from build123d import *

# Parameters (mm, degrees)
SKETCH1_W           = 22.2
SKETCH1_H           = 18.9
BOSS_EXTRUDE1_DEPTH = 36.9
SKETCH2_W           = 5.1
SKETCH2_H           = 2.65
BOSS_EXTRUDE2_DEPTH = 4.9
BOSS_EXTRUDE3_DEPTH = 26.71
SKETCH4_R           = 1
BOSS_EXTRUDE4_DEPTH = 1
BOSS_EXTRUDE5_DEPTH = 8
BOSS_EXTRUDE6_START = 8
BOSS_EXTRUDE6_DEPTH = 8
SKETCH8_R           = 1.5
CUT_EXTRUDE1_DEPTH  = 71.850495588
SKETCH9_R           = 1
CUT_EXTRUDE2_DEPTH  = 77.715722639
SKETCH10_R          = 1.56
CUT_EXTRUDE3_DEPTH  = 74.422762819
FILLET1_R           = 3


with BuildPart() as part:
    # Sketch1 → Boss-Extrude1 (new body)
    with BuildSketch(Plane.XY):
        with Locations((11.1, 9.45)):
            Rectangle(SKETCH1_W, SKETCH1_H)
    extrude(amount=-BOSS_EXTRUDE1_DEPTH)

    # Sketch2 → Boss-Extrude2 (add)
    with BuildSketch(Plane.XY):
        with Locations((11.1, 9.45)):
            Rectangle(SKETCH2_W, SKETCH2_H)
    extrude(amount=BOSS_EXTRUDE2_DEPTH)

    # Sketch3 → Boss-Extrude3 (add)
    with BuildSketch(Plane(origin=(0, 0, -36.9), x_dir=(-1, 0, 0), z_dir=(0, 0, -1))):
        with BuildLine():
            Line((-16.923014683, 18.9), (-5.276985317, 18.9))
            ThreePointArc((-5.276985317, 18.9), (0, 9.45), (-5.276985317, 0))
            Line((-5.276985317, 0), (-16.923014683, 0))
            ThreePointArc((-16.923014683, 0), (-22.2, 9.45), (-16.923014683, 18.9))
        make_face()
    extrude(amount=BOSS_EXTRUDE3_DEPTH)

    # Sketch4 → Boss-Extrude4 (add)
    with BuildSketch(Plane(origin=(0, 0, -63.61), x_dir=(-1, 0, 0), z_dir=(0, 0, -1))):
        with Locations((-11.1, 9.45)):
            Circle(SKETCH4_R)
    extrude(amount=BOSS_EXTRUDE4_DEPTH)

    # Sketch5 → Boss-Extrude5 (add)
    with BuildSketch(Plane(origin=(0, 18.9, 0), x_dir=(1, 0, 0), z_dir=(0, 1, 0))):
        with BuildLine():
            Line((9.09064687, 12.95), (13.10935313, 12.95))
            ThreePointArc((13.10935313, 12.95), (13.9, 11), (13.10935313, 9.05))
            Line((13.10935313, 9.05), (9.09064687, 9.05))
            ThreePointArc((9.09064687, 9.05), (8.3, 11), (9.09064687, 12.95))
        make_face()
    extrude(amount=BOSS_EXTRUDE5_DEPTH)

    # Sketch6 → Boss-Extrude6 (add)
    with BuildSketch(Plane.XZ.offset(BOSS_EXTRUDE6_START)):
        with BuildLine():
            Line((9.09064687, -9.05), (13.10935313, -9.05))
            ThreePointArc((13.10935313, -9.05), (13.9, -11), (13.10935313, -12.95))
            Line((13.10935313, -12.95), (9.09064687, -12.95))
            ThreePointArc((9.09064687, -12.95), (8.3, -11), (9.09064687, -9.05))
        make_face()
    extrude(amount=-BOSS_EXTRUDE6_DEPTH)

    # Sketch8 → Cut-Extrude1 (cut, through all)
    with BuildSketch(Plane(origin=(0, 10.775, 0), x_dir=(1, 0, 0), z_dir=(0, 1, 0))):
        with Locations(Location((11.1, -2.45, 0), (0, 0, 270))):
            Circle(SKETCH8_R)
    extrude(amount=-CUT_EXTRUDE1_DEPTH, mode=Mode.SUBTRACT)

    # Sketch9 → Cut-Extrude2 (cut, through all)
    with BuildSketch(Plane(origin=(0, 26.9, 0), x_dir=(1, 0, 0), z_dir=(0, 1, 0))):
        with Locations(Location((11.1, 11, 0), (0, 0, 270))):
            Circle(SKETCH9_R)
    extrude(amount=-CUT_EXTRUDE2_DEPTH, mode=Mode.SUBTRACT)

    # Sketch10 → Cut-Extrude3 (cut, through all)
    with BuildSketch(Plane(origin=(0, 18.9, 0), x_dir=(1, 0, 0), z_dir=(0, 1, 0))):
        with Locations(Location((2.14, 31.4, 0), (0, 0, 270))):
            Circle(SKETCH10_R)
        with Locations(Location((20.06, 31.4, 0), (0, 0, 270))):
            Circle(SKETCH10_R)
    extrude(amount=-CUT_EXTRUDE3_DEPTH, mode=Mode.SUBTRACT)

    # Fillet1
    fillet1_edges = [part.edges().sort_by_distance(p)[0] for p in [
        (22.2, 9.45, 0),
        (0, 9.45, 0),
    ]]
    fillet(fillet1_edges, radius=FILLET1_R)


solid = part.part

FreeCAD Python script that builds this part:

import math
import FreeCAD as App
import Part
import Sketcher
from FreeCAD import Vector
Q = App.Units.Quantity


def edges_at(feature, points):
    """Names of the edges that pass closest to the given points."""
    edges = feature.Shape.Edges
    near = lambda p: min(range(len(edges)), key=lambda i: edges[i].distToShape(Part.Vertex(*p))[0])
    return sorted({f"Edge{near(p) + 1}" for p in points})

doc = App.newDocument("Part")
body = doc.addObject("PartDesign::Body", "Body")

# Sketch on XY plane
sketch1 = doc.addObject("Sketcher::SketchObject", "Sketch")
body.addObject(sketch1)
sketch1.AttachmentSupport = (doc.XY_Plane, [""])
sketch1.MapMode = "FlatFace"
sketch1.addGeometry([
    Part.LineSegment(Vector(0, 18.9, 0), Vector(0, 0, 0)),
    Part.LineSegment(Vector(0, 0, 0), Vector(22.2, 0, 0)),
    Part.LineSegment(Vector(22.2, 0, 0), Vector(22.2, 18.9, 0)),
    Part.LineSegment(Vector(22.2, 18.9, 0), Vector(0, 18.9, 0)),
], False)
sketch1.addConstraint([
    Sketcher.Constraint("Coincident", 0, 2, 1, 1),
    Sketcher.Constraint("Coincident", 1, 2, 2, 1),
    Sketcher.Constraint("Coincident", 2, 2, 3, 1),
    Sketcher.Constraint("Coincident", 3, 2, 0, 1),
    Sketcher.Constraint("Vertical", 0),
    Sketcher.Constraint("Horizontal", 1),
    Sketcher.Constraint("Vertical", 2),
    Sketcher.Constraint("Horizontal", 3),
    Sketcher.Constraint("Coincident", 0, 2, -1, 1),
    Sketcher.Constraint("DistanceX", 1, 1, 1, 2, Q("22.2 mm")),
    Sketcher.Constraint("DistanceY", 0, 2, 0, 1, Q("18.9 mm")),
])
pad1 = doc.addObject("PartDesign::Pad", "Pad")
body.addObject(pad1)
pad1.Profile = sketch1
pad1.Length = 36.9
pad1.Reversed = True

# Sketch on XY plane
sketch2 = doc.addObject("Sketcher::SketchObject", "Sketch001")
body.addObject(sketch2)
sketch2.AttachmentSupport = (doc.XY_Plane, [""])
sketch2.MapMode = "FlatFace"
sketch2.addGeometry([
    Part.LineSegment(Vector(8.55, 10.775, 0), Vector(8.55, 8.125, 0)),
    Part.LineSegment(Vector(8.55, 8.125, 0), Vector(13.65, 8.125, 0)),
    Part.LineSegment(Vector(13.65, 8.125, 0), Vector(13.65, 10.775, 0)),
    Part.LineSegment(Vector(13.65, 10.775, 0), Vector(8.55, 10.775, 0)),
], False)
sketch2.addConstraint([
    Sketcher.Constraint("Coincident", 0, 2, 1, 1),
    Sketcher.Constraint("Coincident", 1, 2, 2, 1),
    Sketcher.Constraint("Coincident", 2, 2, 3, 1),
    Sketcher.Constraint("Coincident", 3, 2, 0, 1),
    Sketcher.Constraint("Vertical", 0),
    Sketcher.Constraint("Horizontal", 1),
    Sketcher.Constraint("Vertical", 2),
    Sketcher.Constraint("Horizontal", 3),
    Sketcher.Constraint("DistanceX", 1, 1, 1, 2, Q("5.1 mm")),
    Sketcher.Constraint("DistanceY", 0, 2, 0, 1, Q("2.65 mm")),
    Sketcher.Constraint("DistanceX", -1, 1, 0, 2, Q("8.55 mm")),
    Sketcher.Constraint("DistanceY", -1, 1, 0, 2, Q("8.125 mm")),
])
pad2 = doc.addObject("PartDesign::Pad", "Pad001")
body.addObject(pad2)
pad2.Profile = sketch2
pad2.Length = 4.9

# Sketch on XY plane
sketch3 = doc.addObject("Sketcher::SketchObject", "Sketch002")
body.addObject(sketch3)
sketch3.AttachmentSupport = (doc.XY_Plane, [""])
sketch3.MapMode = "FlatFace"
sketch3.AttachmentOffset = App.Placement(Vector(0, 0, -36.9), App.Rotation())
sketch3.addGeometry([
    Part.LineSegment(Vector(5.276985, 18.9, 0), Vector(16.923015, 18.9, 0)),
    Part.ArcOfCircle(Part.Circle(Vector(11.1, 9.45, 0), Vector(0, 0, 1), 11.1), math.radians(-58.358955), math.radians(58.358955)),
    Part.LineSegment(Vector(16.923015, 0, 0), Vector(5.276985, 0, 0)),
    Part.ArcOfCircle(Part.Circle(Vector(11.1, 9.45, 0), Vector(0, 0, 1), 11.1), math.radians(121.641045), math.radians(238.358955)),
], False)
sketch3.addConstraint([
    Sketcher.Constraint("Coincident", 0, 2, 1, 2),
    Sketcher.Constraint("Coincident", 1, 1, 2, 1),
    Sketcher.Constraint("Coincident", 2, 2, 3, 2),
    Sketcher.Constraint("Coincident", 3, 1, 0, 1),
    Sketcher.Constraint("Horizontal", 0),
    Sketcher.Constraint("Horizontal", 2),
    Sketcher.Constraint("Coincident", 3, 3, 1, 3),
    Sketcher.Constraint("Equal", 1, 3),
    Sketcher.Constraint("PointOnObject", 1, 1, -1),
    Sketcher.Constraint("Vertical", 0, 2, 1, 1),
    Sketcher.Constraint("Radius", 1, Q("11.1 mm")),
    Sketcher.Constraint("DistanceX", -1, 1, 1, 3, Q("11.1 mm")),
    Sketcher.Constraint("DistanceY", -1, 1, 0, 2, Q("18.9 mm")),
])
pad3 = doc.addObject("PartDesign::Pad", "Pad002")
body.addObject(pad3)
pad3.Profile = sketch3
pad3.Length = 26.71
pad3.Reversed = True

# Sketch on XY plane
sketch4 = doc.addObject("Sketcher::SketchObject", "Sketch003")
body.addObject(sketch4)
sketch4.AttachmentSupport = (doc.XY_Plane, [""])
sketch4.MapMode = "FlatFace"
sketch4.AttachmentOffset = App.Placement(Vector(0, 0, -63.61), App.Rotation())
sketch4.addGeometry(Part.Circle(Vector(11.1, 9.45, 0), Vector(0, 0, 1), 1), False)
sketch4.addConstraint([
    Sketcher.Constraint("Diameter", 0, Q("2 mm")),
    Sketcher.Constraint("DistanceX", -1, 1, 0, 3, Q("11.1 mm")),
    Sketcher.Constraint("DistanceY", -1, 1, 0, 3, Q("9.45 mm")),
])
pad4 = doc.addObject("PartDesign::Pad", "Pad003")
body.addObject(pad4)
pad4.Profile = sketch4
pad4.Length = 1
pad4.Reversed = True

# Sketch on XZ plane
sketch5 = doc.addObject("Sketcher::SketchObject", "Sketch004")
body.addObject(sketch5)
sketch5.AttachmentSupport = (doc.XZ_Plane, [""])
sketch5.MapMode = "FlatFace"
sketch5.AttachmentOffset = App.Placement(Vector(0, 0, -18.9), App.Rotation())
sketch5.addGeometry([
    Part.LineSegment(Vector(13.109353, -12.95, 0), Vector(9.090647, -12.95, 0)),
    Part.ArcOfCircle(Part.Circle(Vector(11.1, -11, 0), Vector(0, 0, 1), 2.8), math.radians(135.858835), math.radians(224.141165)),
    Part.LineSegment(Vector(9.090647, -9.05, 0), Vector(13.109353, -9.05, 0)),
    Part.ArcOfCircle(Part.Circle(Vector(11.1, -11, 0), Vector(0, 0, 1), 2.8), math.radians(-44.141165), math.radians(44.141165)),
], False)
sketch5.addConstraint([
    Sketcher.Constraint("Coincident", 0, 2, 1, 2),
    Sketcher.Constraint("Coincident", 1, 1, 2, 1),
    Sketcher.Constraint("Coincident", 2, 2, 3, 2),
    Sketcher.Constraint("Coincident", 3, 1, 0, 1),
    Sketcher.Constraint("Horizontal", 0),
    Sketcher.Constraint("Horizontal", 2),
    Sketcher.Constraint("Coincident", 3, 3, 1, 3),
    Sketcher.Constraint("Equal", 1, 3),
    Sketcher.Constraint("Vertical", 0, 2, 1, 1),
    Sketcher.Constraint("Radius", 1, Q("2.8 mm")),
    Sketcher.Constraint("DistanceY", 1, 3, -1, 1, Q("11 mm")),
    Sketcher.Constraint("DistanceX", -1, 1, 1, 3, Q("11.1 mm")),
    Sketcher.Constraint("DistanceY", 0, 2, 1, 1, Q("3.9 mm")),
])
pad5 = doc.addObject("PartDesign::Pad", "Pad004")
body.addObject(pad5)
pad5.Profile = sketch5
pad5.Length = 8
pad5.Reversed = True

# Sketch on XZ plane
sketch6 = doc.addObject("Sketcher::SketchObject", "Sketch005")
body.addObject(sketch6)
sketch6.AttachmentSupport = (doc.XZ_Plane, [""])
sketch6.MapMode = "FlatFace"
sketch6.AttachmentOffset = App.Placement(Vector(0, 0, 8), App.Rotation())
sketch6.addGeometry([
    Part.LineSegment(Vector(13.109353, -9.05, 0), Vector(9.090647, -9.05, 0)),
    Part.ArcOfCircle(Part.Circle(Vector(11.1, -11, 0), Vector(0, 0, 1), 2.8), math.radians(135.858835), math.radians(224.141165)),
    Part.LineSegment(Vector(9.090647, -12.95, 0), Vector(13.109353, -12.95, 0)),
    Part.ArcOfCircle(Part.Circle(Vector(11.1, -11, 0), Vector(0, 0, 1), 2.8), math.radians(-44.141165), math.radians(44.141165)),
], False)
sketch6.addConstraint([
    Sketcher.Constraint("Coincident", 0, 2, 1, 1),
    Sketcher.Constraint("Coincident", 1, 2, 2, 1),
    Sketcher.Constraint("Coincident", 2, 2, 3, 1),
    Sketcher.Constraint("Coincident", 3, 2, 0, 1),
    Sketcher.Constraint("Horizontal", 0),
    Sketcher.Constraint("Horizontal", 2),
    Sketcher.Constraint("Coincident", 3, 3, 1, 3),
    Sketcher.Constraint("Equal", 1, 3),
    Sketcher.Constraint("Vertical", 0, 2, 1, 2),
    Sketcher.Constraint("Radius", 1, Q("2.8 mm")),
    Sketcher.Constraint("DistanceY", 1, 3, -1, 1, Q("11 mm")),
    Sketcher.Constraint("DistanceX", -1, 1, 1, 3, Q("11.1 mm")),
    Sketcher.Constraint("DistanceY", 1, 2, 0, 2, Q("3.9 mm")),
])
pad6 = doc.addObject("PartDesign::Pad", "Pad005")
body.addObject(pad6)
pad6.Profile = sketch6
pad6.Length = 8
pad6.Reversed = True

# Sketch on XZ plane
sketch7 = doc.addObject("Sketcher::SketchObject", "Sketch006")
body.addObject(sketch7)
sketch7.AttachmentSupport = (doc.XZ_Plane, [""])
sketch7.MapMode = "FlatFace"
sketch7.AttachmentOffset = App.Placement(Vector(0, 0, -10.775), App.Rotation())
sketch7.addGeometry(Part.Circle(Vector(11.1, 2.45, 0), Vector(0, 0, 1), 1.5), False)
sketch7.addConstraint([
    Sketcher.Constraint("Diameter", 0, Q("3 mm")),
    Sketcher.Constraint("DistanceX", -1, 1, 0, 3, Q("11.1 mm")),
    Sketcher.Constraint("DistanceY", -1, 1, 0, 3, Q("2.45 mm")),
])
pocket1 = doc.addObject("PartDesign::Pocket", "Pocket")
body.addObject(pocket1)
pocket1.Profile = sketch7
pocket1.Type = "ThroughAll"
pocket1.Reversed = True

# Sketch on XZ plane
sketch8 = doc.addObject("Sketcher::SketchObject", "Sketch007")
body.addObject(sketch8)
sketch8.AttachmentSupport = (doc.XZ_Plane, [""])
sketch8.MapMode = "FlatFace"
sketch8.AttachmentOffset = App.Placement(Vector(0, 0, -26.9), App.Rotation())
sketch8.addGeometry(Part.Circle(Vector(11.1, -11, 0), Vector(0, 0, 1), 1), False)
sketch8.addConstraint([
    Sketcher.Constraint("Diameter", 0, Q("2 mm")),
    Sketcher.Constraint("DistanceY", 0, 3, -1, 1, Q("11 mm")),
    Sketcher.Constraint("DistanceX", -1, 1, 0, 3, Q("11.1 mm")),
])
pocket2 = doc.addObject("PartDesign::Pocket", "Pocket001")
body.addObject(pocket2)
pocket2.Profile = sketch8
pocket2.Type = "ThroughAll"
pocket2.Reversed = True

# Sketch on XZ plane
sketch9 = doc.addObject("Sketcher::SketchObject", "Sketch008")
body.addObject(sketch9)
sketch9.AttachmentSupport = (doc.XZ_Plane, [""])
sketch9.MapMode = "FlatFace"
sketch9.AttachmentOffset = App.Placement(Vector(0, 0, -18.9), App.Rotation())
sketch9.addGeometry([
    Part.Circle(Vector(2.14, -31.4, 0), Vector(0, 0, 1), 1.56),
    Part.Circle(Vector(20.06, -31.4, 0), Vector(0, 0, 1), 1.56),
], False)
sketch9.addConstraint([
    Sketcher.Constraint("Equal", 0, 1),
    Sketcher.Constraint("Horizontal", 0, 3, 1, 3),
    Sketcher.Constraint("Diameter", 0, Q("3.12 mm")),
    Sketcher.Constraint("DistanceY", 0, 3, -1, 1, Q("31.4 mm")),
    Sketcher.Constraint("DistanceX", -1, 1, 0, 3, Q("2.14 mm")),
    Sketcher.Constraint("DistanceX", -1, 1, 1, 3, Q("20.06 mm")),
])
pocket3 = doc.addObject("PartDesign::Pocket", "Pocket002")
body.addObject(pocket3)
pocket3.Profile = sketch9
pocket3.Type = "ThroughAll"
pocket3.Reversed = True
doc.recompute()

fillet = doc.addObject("PartDesign::Fillet", "Fillet")
body.addObject(fillet)
fillet.Base = (pocket3, edges_at(pocket3, [(22.2, 9.45, 0), (0, 9.45, 0)]))
fillet.Radius = 3

doc.recompute()
